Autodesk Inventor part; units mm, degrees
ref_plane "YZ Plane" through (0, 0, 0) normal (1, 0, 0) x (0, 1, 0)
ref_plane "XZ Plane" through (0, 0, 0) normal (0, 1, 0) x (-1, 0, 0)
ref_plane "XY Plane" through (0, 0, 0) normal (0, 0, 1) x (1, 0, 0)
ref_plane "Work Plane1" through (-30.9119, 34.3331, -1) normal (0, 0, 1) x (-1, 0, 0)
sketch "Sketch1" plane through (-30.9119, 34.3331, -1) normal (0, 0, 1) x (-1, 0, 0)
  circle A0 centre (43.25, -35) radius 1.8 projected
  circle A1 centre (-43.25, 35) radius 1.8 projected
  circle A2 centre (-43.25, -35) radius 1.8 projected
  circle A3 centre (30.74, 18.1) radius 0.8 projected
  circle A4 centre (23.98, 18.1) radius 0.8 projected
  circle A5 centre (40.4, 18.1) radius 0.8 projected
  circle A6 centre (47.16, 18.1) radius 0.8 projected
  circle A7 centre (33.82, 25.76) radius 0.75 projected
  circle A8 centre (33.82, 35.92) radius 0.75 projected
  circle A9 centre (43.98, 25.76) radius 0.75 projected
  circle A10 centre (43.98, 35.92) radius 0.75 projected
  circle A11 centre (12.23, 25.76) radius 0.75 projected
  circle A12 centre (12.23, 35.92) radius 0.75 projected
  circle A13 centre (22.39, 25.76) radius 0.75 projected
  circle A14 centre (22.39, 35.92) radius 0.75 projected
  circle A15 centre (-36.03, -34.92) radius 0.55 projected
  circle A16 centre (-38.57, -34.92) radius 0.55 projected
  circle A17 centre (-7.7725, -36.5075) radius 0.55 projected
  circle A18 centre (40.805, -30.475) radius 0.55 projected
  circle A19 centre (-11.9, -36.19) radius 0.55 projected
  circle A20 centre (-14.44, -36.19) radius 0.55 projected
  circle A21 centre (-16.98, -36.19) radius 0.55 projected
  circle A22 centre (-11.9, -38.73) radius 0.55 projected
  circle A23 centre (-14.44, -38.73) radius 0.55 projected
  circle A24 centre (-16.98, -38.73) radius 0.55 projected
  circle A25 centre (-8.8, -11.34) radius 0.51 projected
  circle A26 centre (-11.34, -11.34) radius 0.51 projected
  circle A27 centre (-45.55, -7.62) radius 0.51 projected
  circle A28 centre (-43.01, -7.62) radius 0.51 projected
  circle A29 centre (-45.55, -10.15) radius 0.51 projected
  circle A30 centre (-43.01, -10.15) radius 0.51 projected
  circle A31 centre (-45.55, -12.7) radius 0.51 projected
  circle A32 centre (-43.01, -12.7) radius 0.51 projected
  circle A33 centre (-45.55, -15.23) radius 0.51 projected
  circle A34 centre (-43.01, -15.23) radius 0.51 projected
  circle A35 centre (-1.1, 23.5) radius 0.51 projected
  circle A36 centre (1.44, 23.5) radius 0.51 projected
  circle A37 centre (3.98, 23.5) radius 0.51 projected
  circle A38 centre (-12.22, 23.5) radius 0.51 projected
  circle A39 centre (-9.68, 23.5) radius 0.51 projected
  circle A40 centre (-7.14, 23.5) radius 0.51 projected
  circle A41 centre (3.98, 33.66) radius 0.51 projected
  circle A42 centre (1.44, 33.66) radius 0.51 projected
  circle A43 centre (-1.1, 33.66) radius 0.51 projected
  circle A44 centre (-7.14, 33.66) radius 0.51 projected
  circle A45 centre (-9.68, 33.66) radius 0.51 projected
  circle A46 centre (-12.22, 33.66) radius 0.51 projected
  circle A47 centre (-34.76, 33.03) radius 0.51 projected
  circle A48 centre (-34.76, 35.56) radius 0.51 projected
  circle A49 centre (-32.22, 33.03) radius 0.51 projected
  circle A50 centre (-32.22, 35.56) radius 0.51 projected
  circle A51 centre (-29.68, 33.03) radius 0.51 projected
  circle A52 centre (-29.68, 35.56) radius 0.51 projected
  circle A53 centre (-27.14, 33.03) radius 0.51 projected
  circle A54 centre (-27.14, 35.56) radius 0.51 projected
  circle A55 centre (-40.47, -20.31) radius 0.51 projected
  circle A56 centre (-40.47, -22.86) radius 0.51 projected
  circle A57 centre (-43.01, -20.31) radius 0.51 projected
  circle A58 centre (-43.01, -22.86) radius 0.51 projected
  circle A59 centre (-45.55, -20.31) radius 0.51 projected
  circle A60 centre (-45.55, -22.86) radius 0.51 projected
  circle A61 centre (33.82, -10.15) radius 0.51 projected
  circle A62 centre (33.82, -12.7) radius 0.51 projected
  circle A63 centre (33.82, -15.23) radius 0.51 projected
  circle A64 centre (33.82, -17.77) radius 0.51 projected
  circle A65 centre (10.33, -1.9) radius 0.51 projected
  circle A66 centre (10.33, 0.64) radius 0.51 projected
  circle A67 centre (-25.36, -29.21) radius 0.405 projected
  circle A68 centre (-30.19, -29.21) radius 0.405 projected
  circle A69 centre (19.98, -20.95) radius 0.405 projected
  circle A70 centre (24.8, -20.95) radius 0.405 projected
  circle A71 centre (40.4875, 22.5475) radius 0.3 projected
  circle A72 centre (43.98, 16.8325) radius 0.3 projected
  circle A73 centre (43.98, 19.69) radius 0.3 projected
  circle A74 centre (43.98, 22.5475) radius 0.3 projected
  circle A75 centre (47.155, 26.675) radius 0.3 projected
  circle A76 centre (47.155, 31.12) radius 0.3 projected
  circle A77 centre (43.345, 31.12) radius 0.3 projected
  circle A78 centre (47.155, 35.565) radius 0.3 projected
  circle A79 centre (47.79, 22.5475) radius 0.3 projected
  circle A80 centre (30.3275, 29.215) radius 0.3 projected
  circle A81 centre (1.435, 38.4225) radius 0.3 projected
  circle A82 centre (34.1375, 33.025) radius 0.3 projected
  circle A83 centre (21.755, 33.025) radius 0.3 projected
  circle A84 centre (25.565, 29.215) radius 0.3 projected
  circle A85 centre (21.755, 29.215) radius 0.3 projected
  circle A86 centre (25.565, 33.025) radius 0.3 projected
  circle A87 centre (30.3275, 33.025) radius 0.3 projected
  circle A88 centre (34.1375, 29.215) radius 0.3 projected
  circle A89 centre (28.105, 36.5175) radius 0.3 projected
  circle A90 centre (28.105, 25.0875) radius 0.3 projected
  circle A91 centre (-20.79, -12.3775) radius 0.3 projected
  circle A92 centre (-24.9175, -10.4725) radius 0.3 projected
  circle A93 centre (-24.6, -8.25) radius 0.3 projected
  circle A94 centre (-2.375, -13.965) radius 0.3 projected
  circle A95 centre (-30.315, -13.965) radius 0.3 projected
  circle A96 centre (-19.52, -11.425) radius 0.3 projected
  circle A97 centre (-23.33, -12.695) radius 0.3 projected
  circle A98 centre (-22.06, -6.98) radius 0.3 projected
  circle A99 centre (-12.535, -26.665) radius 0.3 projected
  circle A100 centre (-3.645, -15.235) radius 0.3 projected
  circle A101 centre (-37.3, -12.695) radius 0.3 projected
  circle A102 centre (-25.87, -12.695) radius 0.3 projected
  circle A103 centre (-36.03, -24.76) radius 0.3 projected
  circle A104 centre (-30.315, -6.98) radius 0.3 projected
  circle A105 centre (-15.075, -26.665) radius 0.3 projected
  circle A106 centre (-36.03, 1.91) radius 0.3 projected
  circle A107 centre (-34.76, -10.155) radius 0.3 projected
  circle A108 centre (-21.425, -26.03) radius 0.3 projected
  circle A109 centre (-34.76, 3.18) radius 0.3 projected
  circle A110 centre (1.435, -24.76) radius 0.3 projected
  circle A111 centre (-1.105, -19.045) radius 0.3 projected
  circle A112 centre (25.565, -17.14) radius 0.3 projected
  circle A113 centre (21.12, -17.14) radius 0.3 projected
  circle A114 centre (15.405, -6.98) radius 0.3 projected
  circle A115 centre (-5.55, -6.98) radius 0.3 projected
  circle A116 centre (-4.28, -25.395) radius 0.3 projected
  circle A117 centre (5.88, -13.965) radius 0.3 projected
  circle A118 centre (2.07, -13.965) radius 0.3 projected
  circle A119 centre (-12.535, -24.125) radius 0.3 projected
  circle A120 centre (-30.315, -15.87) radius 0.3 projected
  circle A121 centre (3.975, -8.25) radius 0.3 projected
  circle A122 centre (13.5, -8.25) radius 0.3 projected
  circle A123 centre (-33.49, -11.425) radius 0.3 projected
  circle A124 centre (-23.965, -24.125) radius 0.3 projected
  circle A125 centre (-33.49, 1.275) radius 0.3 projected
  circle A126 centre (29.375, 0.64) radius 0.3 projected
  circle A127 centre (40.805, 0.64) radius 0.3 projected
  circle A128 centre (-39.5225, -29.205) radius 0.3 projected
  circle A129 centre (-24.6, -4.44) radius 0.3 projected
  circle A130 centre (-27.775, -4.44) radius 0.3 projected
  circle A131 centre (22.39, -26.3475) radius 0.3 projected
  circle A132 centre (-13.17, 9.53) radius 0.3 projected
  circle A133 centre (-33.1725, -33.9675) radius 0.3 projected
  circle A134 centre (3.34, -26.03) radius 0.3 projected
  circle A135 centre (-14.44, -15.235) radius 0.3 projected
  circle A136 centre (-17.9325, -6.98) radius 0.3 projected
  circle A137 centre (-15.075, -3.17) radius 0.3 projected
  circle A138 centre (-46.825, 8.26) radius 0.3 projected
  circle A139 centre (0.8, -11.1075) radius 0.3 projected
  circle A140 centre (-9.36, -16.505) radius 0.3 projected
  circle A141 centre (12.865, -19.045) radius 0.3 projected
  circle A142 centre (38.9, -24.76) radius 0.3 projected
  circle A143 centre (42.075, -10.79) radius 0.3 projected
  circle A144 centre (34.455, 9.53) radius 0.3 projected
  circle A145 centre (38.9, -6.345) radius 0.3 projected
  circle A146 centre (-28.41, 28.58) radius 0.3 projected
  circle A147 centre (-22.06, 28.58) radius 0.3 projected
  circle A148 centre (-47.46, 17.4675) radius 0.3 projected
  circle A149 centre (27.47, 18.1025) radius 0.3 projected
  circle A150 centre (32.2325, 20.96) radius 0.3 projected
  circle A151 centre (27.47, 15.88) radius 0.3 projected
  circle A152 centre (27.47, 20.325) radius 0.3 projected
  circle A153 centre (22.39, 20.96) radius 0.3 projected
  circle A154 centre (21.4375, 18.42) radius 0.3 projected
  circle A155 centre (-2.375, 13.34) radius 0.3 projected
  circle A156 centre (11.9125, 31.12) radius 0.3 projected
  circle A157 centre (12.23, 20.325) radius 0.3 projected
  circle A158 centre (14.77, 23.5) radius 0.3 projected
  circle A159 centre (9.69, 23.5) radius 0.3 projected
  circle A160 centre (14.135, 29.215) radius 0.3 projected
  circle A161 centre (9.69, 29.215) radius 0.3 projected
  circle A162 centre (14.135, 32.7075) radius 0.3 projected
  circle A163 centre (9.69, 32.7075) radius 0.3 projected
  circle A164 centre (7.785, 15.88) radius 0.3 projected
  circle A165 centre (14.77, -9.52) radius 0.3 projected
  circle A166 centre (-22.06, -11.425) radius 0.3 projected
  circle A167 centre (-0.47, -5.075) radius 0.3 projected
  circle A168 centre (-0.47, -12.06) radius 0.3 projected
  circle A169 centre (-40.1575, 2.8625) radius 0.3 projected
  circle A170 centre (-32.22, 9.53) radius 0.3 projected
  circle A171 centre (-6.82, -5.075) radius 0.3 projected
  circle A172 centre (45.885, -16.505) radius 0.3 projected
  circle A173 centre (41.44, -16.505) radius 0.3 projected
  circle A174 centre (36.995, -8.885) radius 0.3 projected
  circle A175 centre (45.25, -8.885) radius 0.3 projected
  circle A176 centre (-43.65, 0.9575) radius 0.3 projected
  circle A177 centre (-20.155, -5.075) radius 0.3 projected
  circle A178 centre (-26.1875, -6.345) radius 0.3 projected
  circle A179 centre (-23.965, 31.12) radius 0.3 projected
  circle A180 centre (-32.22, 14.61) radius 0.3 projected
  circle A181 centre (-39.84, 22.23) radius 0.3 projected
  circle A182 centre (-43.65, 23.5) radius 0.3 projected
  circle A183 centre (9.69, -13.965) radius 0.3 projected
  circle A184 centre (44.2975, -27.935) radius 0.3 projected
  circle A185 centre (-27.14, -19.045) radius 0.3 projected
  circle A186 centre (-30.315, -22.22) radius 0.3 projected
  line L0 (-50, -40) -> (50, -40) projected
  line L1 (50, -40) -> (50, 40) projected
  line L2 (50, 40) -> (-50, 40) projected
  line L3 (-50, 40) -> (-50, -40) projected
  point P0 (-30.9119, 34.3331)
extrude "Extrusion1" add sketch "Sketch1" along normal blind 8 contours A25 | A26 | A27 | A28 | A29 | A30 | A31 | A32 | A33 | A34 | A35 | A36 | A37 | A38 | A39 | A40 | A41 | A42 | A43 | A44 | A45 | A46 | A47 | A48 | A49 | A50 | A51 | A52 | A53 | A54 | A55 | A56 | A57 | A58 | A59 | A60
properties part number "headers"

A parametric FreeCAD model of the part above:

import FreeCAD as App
import Part
import Sketcher

V = App.Vector
Q = App.Units.Quantity

doc = App.newDocument("Part")
body = doc.addObject("PartDesign::Body", "Body")
body.AllowCompound = True

# Sketch on XY plane
sketch1 = doc.addObject("Sketcher::SketchObject", "Sketch")
body.addObject(sketch1)
sketch1.AttachmentSupport = (doc.XY_Plane, [""])
sketch1.MapMode = "FlatFace"
sketch1.AttachmentOffset = App.Placement(V(0, 0, -1), App.Rotation())
sketch1.addGeometry(Part.Circle(V(-22.1, 45.7, 0), V(0, 0, 1), 0.5), False)
sketch1.addGeometry(Part.Circle(V(-19.6, 45.7, 0), V(0, 0, 1), 0.5), False)
sketch1.addGeometry(Part.Circle(V(14.6, 42, 0), V(0, 0, 1), 0.5), False)
sketch1.addGeometry(Part.Circle(V(12.1, 42, 0), V(0, 0, 1), 0.5), False)
sketch1.addGeometry(Part.Circle(V(14.6, 44.5, 0), V(0, 0, 1), 0.5), False)
sketch1.addGeometry(Part.Circle(V(12.1, 44.5, 0), V(0, 0, 1), 0.5), False)
sketch1.addGeometry(Part.Circle(V(14.6, 47, 0), V(0, 0, 1), 0.5), False)
sketch1.addGeometry(Part.Circle(V(12.1, 47, 0), V(0, 0, 1), 0.5), False)
sketch1.addGeometry(Part.Circle(V(14.6, 49.6, 0), V(0, 0, 1), 0.5), False)
sketch1.addGeometry(Part.Circle(V(12.1, 49.6, 0), V(0, 0, 1), 0.5), False)
sketch1.addGeometry(Part.Circle(V(-29.8, 10.8, 0), V(0, 0, 1), 0.5), False)
sketch1.addGeometry(Part.Circle(V(-32.4, 10.8, 0), V(0, 0, 1), 0.5), False)
sketch1.addGeometry(Part.Circle(V(-34.9, 10.8, 0), V(0, 0, 1), 0.5), False)
sketch1.addGeometry(Part.Circle(V(-18.7, 10.8, 0), V(0, 0, 1), 0.5), False)
sketch1.addGeometry(Part.Circle(V(-21.2, 10.8, 0), V(0, 0, 1), 0.5), False)
sketch1.addGeometry(Part.Circle(V(-23.8, 10.8, 0), V(0, 0, 1), 0.5), False)
sketch1.addGeometry(Part.Circle(V(-34.9, 0.7, 0), V(0, 0, 1), 0.5), False)
sketch1.addGeometry(Part.Circle(V(-32.4, 0.7, 0), V(0, 0, 1), 0.5), False)
sketch1.addGeometry(Part.Circle(V(-29.8, 0.7, 0), V(0, 0, 1), 0.5), False)
sketch1.addGeometry(Part.Circle(V(-23.8, 0.7, 0), V(0, 0, 1), 0.5), False)
sketch1.addGeometry(Part.Circle(V(-21.2, 0.7, 0), V(0, 0, 1), 0.5), False)
sketch1.addGeometry(Part.Circle(V(-18.7, 0.7, 0), V(0, 0, 1), 0.5), False)
sketch1.addGeometry(Part.Circle(V(3.8, 1.3, 0), V(0, 0, 1), 0.5), False)
sketch1.addGeometry(Part.Circle(V(3.8, -1.2, 0), V(0, 0, 1), 0.5), False)
sketch1.addGeometry(Part.Circle(V(1.3, 1.3, 0), V(0, 0, 1), 0.5), False)
sketch1.addGeometry(Part.Circle(V(1.3, -1.2, 0), V(0, 0, 1), 0.5), False)
sketch1.addGeometry(Part.Circle(V(-1.2, 1.3, 0), V(0, 0, 1), 0.5), False)
sketch1.addGeometry(Part.Circle(V(-1.2, -1.2, 0), V(0, 0, 1), 0.5), False)
sketch1.addGeometry(Part.Circle(V(-3.8, 1.3, 0), V(0, 0, 1), 0.5), False)
sketch1.addGeometry(Part.Circle(V(-3.8, -1.2, 0), V(0, 0, 1), 0.5), False)
sketch1.addGeometry(Part.Circle(V(9.6, 54.6, 0), V(0, 0, 1), 0.5), False)
sketch1.addGeometry(Part.Circle(V(9.6, 57.2, 0), V(0, 0, 1), 0.5), False)
sketch1.addGeometry(Part.Circle(V(12.1, 54.6, 0), V(0, 0, 1), 0.5), False)
sketch1.addGeometry(Part.Circle(V(12.1, 57.2, 0), V(0, 0, 1), 0.5), False)
sketch1.addGeometry(Part.Circle(V(14.6, 54.6, 0), V(0, 0, 1), 0.5), False)
sketch1.addGeometry(Part.Circle(V(14.6, 57.2, 0), V(0, 0, 1), 0.5), False)
sketch1.addConstraint(Sketcher.Constraint("Equal", 0, 1))
sketch1.addConstraint(Sketcher.Constraint("Equal", 1, 2))
sketch1.addConstraint(Sketcher.Constraint("Equal", 2, 3))
sketch1.addConstraint(Sketcher.Constraint("Equal", 3, 4))
sketch1.addConstraint(Sketcher.Constraint("Equal", 4, 5))
sketch1.addConstraint(Sketcher.Constraint("Equal", 5, 6))
sketch1.addConstraint(Sketcher.Constraint("Equal", 6, 7))
sketch1.addConstraint(Sketcher.Constraint("Equal", 7, 8))
sketch1.addConstraint(Sketcher.Constraint("Equal", 8, 9))
sketch1.addConstraint(Sketcher.Constraint("Equal", 9, 10))
sketch1.addConstraint(Sketcher.Constraint("Equal", 10, 11))
sketch1.addConstraint(Sketcher.Constraint("Equal", 11, 12))
sketch1.addConstraint(Sketcher.Constraint("Equal", 12, 13))
sketch1.addConstraint(Sketcher.Constraint("Equal", 13, 14))
sketch1.addConstraint(Sketcher.Constraint("Equal", 14, 15))
sketch1.addConstraint(Sketcher.Constraint("Equal", 15, 16))
sketch1.addConstraint(Sketcher.Constraint("Equal", 16, 17))
sketch1.addConstraint(Sketcher.Constraint("Equal", 17, 18))
sketch1.addConstraint(Sketcher.Constraint("Equal", 18, 19))
sketch1.addConstraint(Sketcher.Constraint("Equal", 19, 20))
sketch1.addConstraint(Sketcher.Constraint("Equal", 20, 21))
sketch1.addConstraint(Sketcher.Constraint("Equal", 21, 22))
sketch1.addConstraint(Sketcher.Constraint("Equal", 22, 23))
sketch1.addConstraint(Sketcher.Constraint("Equal", 23, 24))
sketch1.addConstraint(Sketcher.Constraint("Equal", 24, 25))
sketch1.addConstraint(Sketcher.Constraint("Equal", 25, 26))
sketch1.addConstraint(Sketcher.Constraint("Equal", 26, 27))
sketch1.addConstraint(Sketcher.Constraint("Equal", 27, 28))
sketch1.addConstraint(Sketcher.Constraint("Equal", 28, 29))
sketch1.addConstraint(Sketcher.Constraint("Equal", 29, 30))
sketch1.addConstraint(Sketcher.Constraint("Equal", 30, 31))
sketch1.addConstraint(Sketcher.Constraint("Equal", 31, 32))
sketch1.addConstraint(Sketcher.Constraint("Equal", 32, 33))
sketch1.addConstraint(Sketcher.Constraint("Equal", 33, 34))
sketch1.addConstraint(Sketcher.Constraint("Equal", 34, 35))
sketch1.addConstraint(Sketcher.Constraint("Horizontal", 0, 3, 1, 3))
sketch1.addConstraint(Sketcher.Constraint("Horizontal", 2, 3, 3, 3))
sketch1.addConstraint(Sketcher.Constraint("Horizontal", 4, 3, 5, 3))
sketch1.addConstraint(Sketcher.Constraint("Horizontal", 6, 3, 7, 3))
sketch1.addConstraint(Sketcher.Constraint("Horizontal", 8, 3, 9, 3))
sketch1.addConstraint(Sketcher.Constraint("Horizontal", 10, 3, 11, 3))
sketch1.addConstraint(Sketcher.Constraint("Horizontal", 11, 3, 12, 3))
sketch1.addConstraint(Sketcher.Constraint("Horizontal", 12, 3, 13, 3))
sketch1.addConstraint(Sketcher.Constraint("Horizontal", 13, 3, 14, 3))
sketch1.addConstraint(Sketcher.Constraint("Horizontal", 14, 3, 15, 3))
sketch1.addConstraint(Sketcher.Constraint("Horizontal", 16, 3, 17, 3))
sketch1.addConstraint(Sketcher.Constraint("Horizontal", 17, 3, 18, 3))
sketch1.addConstraint(Sketcher.Constraint("Horizontal", 18, 3, 19, 3))
sketch1.addConstraint(Sketcher.Constraint("Horizontal", 19, 3, 20, 3))
sketch1.addConstraint(Sketcher.Constraint("Horizontal", 20, 3, 21, 3))
sketch1.addConstraint(Sketcher.Constraint("Horizontal", 22, 3, 24, 3))
sketch1.addConstraint(Sketcher.Constraint("Horizontal", 23, 3, 25, 3))
sketch1.addConstraint(Sketcher.Constraint("Horizontal", 24, 3, 26, 3))
sketch1.addConstraint(Sketcher.Constraint("Horizontal", 25, 3, 27, 3))
sketch1.addConstraint(Sketcher.Constraint("Horizontal", 26, 3, 28, 3))
sketch1.addConstraint(Sketcher.Constraint("Horizontal", 27, 3, 29, 3))
sketch1.addConstraint(Sketcher.Constraint("Horizontal", 30, 3, 32, 3))
sketch1.addConstraint(Sketcher.Constraint("Horizontal", 31, 3, 33, 3))
sketch1.addConstraint(Sketcher.Constraint("Horizontal", 32, 3, 34, 3))
sketch1.addConstraint(Sketcher.Constraint("Horizontal", 33, 3, 35, 3))
sketch1.addConstraint(Sketcher.Constraint("Vertical", 2, 3, 4, 3))
sketch1.addConstraint(Sketcher.Constraint("Vertical", 3, 3, 5, 3))
sketch1.addConstraint(Sketcher.Constraint("Vertical", 4, 3, 6, 3))
sketch1.addConstraint(Sketcher.Constraint("Vertical", 5, 3, 7, 3))
sketch1.addConstraint(Sketcher.Constraint("Vertical", 6, 3, 8, 3))
sketch1.addConstraint(Sketcher.Constraint("Vertical", 7, 3, 9, 3))
sketch1.addConstraint(Sketcher.Constraint("Vertical", 12, 3, 16, 3))
sketch1.addConstraint(Sketcher.Constraint("Vertical", 11, 3, 17, 3))
sketch1.addConstraint(Sketcher.Constraint("Vertical", 10, 3, 18, 3))
sketch1.addConstraint(Sketcher.Constraint("Vertical", 15, 3, 19, 3))
sketch1.addConstraint(Sketcher.Constraint("Vertical", 14, 3, 20, 3))
sketch1.addConstraint(Sketcher.Constraint("Vertical", 13, 3, 21, 3))
sketch1.addConstraint(Sketcher.Constraint("Vertical", 22, 3, 23, 3))
sketch1.addConstraint(Sketcher.Constraint("Vertical", 24, 3, 25, 3))
sketch1.addConstraint(Sketcher.Constraint("Vertical", 26, 3, 27, 3))
sketch1.addConstraint(Sketcher.Constraint("Vertical", 28, 3, 29, 3))
sketch1.addConstraint(Sketcher.Constraint("Vertical", 30, 3, 31, 3))
sketch1.addConstraint(Sketcher.Constraint("Vertical", 9, 3, 32, 3))
sketch1.addConstraint(Sketcher.Constraint("Vertical", 32, 3, 33, 3))
sketch1.addConstraint(Sketcher.Constraint("Vertical", 8, 3, 34, 3))
sketch1.addConstraint(Sketcher.Constraint("Vertical", 34, 3, 35, 3))
sketch1.addConstraint(Sketcher.Constraint("Diameter", 0, Q("1.02 mm")))
sketch1.addConstraint(Sketcher.Constraint("DistanceX", 21, 3, 24, 3, Q("20 mm")))
sketch1.addConstraint(Sketcher.Constraint("DistanceX", 10, 3, 0, 3, Q("7.7 mm")))
sketch1.addConstraint(Sketcher.Constraint("DistanceX", 12, 3, 13, 3, Q("16.2 mm")))
sketch1.addConstraint(Sketcher.Constraint("DistanceY", 23, 3, 21, 3, Q("1.9 mm")))
sketch1.addConstraint(Sketcher.Constraint("DistanceX", 0, 3, 1, 3, Q("2.54 mm")))
sketch1.addConstraint(Sketcher.Constraint("DistanceX", 1, 3, 2, 3, Q("34.21 mm")))
sketch1.addConstraint(Sketcher.Constraint("DistanceY", 2, 3, 1, 3, Q("3.72 mm")))
sketch1.addConstraint(Sketcher.Constraint("DistanceX", 3, 3, 2, 3, Q("2.54 mm")))
sketch1.addConstraint(Sketcher.Constraint("DistanceY", 2, 3, 4, 3, Q("2.53 mm")))
sketch1.addConstraint(Sketcher.Constraint("DistanceY", 4, 3, 6, 3, Q("2.55 mm")))
sketch1.addConstraint(Sketcher.Constraint("DistanceY", 6, 3, 8, 3, Q("2.53 mm")))
sketch1.addConstraint(Sketcher.Constraint("DistanceY", 10, 3, 0, 3, Q("34.84 mm")))
sketch1.addConstraint(Sketcher.Constraint("DistanceX", 11, 3, 10, 3, Q("2.54 mm")))
sketch1.addConstraint(Sketcher.Constraint("DistanceX", 12, 3, 11, 3, Q("2.54 mm")))
sketch1.addConstraint(Sketcher.Constraint("DistanceX", 14, 3, 13, 3, Q("2.54 mm")))
sketch1.addConstraint(Sketcher.Constraint("DistanceX", 15, 3, 14, 3, Q("2.54 mm")))
sketch1.addConstraint(Sketcher.Constraint("DistanceY", 16, 3, 12, 3, Q("10.16 mm")))
sketch1.addConstraint(Sketcher.Constraint("DistanceX", 21, 3, 22, 3, Q("22.54 mm")))
sketch1.addConstraint(Sketcher.Constraint("DistanceY", 21, 3, 22, 3, Q("0.63 mm")))
sketch1.addConstraint(Sketcher.Constraint("DistanceX", 26, 3, 24, 3, Q("2.54 mm")))
sketch1.addConstraint(Sketcher.Constraint("DistanceX", 28, 3, 26, 3, Q("2.54 mm")))
sketch1.addConstraint(Sketcher.Constraint("DistanceX", 30, 3, 9, 3, Q("2.54 mm")))
sketch1.addConstraint(Sketcher.Constraint("DistanceY", 9, 3, 30, 3, Q("5.08 mm")))
sketch1.addConstraint(Sketcher.Constraint("DistanceY", 30, 3, 31, 3, Q("2.55 mm")))
sketch1.addConstraint(Sketcher.Constraint("DistanceX", 0, 3, -1, 1, Q("22.112 mm")))
sketch1.addConstraint(Sketcher.Constraint("DistanceY", -1, 1, 0, 3, Q("45.673 mm")))
pad1 = doc.addObject("PartDesign::Pad", "Pad")
body.addObject(pad1)
pad1.Profile = sketch1
pad1.Length = 8

doc.recompute()
